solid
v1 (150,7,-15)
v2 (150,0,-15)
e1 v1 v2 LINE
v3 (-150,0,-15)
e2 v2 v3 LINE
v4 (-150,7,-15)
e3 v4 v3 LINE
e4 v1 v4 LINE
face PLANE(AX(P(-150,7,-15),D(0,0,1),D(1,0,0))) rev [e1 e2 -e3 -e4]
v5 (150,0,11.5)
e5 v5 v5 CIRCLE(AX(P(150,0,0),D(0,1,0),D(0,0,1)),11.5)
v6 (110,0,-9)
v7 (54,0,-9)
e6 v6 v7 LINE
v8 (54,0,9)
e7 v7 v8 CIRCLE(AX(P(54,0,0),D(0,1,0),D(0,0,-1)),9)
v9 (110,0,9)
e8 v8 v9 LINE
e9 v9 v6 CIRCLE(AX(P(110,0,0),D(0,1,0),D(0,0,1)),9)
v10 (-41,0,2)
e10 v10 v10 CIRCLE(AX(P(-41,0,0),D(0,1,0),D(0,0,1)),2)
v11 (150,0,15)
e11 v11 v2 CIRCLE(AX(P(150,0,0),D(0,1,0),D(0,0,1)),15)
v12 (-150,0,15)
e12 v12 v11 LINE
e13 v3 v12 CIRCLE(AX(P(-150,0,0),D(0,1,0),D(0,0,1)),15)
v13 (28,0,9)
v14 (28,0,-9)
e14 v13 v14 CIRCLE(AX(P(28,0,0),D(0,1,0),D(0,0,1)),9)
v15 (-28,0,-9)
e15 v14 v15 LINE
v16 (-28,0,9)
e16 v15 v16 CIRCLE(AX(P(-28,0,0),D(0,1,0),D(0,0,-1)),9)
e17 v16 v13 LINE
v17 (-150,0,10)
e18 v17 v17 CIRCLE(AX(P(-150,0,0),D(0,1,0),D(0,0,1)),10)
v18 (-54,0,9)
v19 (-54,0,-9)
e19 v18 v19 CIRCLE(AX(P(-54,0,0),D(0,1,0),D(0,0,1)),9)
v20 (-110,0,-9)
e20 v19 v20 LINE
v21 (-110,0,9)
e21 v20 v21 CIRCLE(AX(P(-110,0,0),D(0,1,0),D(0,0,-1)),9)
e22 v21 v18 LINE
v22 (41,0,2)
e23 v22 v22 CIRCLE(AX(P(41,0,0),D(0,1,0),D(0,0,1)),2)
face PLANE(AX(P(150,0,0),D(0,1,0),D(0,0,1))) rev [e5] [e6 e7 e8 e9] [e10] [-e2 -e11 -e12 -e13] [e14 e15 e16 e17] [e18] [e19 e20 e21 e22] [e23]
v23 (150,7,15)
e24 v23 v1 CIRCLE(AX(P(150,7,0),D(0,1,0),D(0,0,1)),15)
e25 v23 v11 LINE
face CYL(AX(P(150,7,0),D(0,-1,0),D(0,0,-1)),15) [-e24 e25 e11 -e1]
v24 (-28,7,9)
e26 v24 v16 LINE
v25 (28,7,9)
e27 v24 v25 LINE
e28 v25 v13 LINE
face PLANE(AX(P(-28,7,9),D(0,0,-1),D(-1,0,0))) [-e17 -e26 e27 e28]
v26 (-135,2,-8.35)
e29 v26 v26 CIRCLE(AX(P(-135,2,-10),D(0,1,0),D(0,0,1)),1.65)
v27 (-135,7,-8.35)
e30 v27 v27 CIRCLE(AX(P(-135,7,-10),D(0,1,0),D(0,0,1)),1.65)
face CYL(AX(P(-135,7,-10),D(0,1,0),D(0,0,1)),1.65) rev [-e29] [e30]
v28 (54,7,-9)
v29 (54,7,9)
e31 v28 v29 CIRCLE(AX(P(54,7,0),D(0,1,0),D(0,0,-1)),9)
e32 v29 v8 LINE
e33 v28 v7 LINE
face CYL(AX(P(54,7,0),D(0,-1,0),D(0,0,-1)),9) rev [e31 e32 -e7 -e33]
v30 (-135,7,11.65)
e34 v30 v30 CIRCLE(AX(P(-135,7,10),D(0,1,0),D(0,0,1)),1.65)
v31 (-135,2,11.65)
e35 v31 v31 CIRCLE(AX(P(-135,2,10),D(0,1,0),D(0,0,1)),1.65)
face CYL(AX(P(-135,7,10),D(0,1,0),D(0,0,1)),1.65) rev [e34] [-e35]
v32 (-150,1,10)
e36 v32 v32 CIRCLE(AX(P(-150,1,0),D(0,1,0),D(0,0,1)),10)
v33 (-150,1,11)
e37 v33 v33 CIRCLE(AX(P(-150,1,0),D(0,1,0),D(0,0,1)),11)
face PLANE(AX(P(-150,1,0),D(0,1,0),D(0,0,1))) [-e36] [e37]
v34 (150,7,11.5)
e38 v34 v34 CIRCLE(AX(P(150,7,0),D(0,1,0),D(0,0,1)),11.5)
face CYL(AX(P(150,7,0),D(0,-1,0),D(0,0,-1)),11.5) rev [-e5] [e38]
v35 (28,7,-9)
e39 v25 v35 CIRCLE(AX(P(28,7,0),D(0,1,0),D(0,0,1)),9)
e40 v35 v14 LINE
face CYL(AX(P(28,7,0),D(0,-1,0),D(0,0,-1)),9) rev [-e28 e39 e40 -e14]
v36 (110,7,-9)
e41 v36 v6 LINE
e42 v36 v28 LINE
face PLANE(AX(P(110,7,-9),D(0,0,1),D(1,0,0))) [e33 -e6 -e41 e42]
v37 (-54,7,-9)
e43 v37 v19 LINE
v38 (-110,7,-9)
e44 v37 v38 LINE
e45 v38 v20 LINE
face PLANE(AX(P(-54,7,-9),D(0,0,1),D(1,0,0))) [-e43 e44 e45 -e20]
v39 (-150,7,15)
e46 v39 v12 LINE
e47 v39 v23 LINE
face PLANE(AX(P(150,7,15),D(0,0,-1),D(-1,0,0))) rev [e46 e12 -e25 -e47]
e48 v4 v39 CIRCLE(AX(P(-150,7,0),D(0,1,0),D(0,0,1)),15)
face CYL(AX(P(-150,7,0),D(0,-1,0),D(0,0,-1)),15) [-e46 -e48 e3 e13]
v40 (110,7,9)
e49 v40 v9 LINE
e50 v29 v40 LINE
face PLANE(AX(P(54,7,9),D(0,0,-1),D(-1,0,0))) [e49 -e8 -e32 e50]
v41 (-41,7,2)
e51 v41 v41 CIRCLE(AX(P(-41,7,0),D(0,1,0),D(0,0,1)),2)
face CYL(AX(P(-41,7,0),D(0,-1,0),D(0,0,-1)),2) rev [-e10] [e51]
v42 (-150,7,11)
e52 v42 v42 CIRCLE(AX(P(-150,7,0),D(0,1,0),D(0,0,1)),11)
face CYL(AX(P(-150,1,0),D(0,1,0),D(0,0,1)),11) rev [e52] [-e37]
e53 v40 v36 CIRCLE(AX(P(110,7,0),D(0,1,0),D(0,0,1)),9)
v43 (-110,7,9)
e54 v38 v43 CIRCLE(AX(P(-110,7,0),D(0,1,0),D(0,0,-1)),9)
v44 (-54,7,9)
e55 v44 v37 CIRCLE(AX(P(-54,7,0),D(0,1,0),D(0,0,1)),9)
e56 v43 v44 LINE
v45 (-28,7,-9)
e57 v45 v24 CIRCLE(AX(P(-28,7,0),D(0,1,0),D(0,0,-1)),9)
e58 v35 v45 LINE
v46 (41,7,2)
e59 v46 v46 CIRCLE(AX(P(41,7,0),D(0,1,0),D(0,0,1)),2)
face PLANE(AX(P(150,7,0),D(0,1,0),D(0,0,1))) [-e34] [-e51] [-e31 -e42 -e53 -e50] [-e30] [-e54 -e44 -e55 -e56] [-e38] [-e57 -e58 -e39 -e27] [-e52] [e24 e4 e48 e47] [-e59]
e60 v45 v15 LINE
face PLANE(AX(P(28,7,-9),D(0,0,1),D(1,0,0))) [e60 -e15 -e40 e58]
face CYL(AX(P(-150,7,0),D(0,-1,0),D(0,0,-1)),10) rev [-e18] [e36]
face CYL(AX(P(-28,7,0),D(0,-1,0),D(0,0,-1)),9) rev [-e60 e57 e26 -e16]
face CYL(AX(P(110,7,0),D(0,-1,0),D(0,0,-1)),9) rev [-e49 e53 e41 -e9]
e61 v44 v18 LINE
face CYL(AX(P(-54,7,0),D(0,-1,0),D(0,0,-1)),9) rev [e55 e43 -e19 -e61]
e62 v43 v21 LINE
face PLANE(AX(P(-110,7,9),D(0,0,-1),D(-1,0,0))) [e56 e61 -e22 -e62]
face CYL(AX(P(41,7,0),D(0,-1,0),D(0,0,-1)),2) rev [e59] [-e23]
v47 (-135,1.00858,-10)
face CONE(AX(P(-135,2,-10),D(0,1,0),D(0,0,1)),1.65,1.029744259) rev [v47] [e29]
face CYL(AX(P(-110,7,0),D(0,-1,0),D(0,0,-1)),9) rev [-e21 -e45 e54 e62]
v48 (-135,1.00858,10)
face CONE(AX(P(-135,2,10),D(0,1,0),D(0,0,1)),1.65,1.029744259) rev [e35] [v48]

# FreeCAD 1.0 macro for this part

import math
import FreeCAD as App
import Part
import Sketcher
from FreeCAD import Vector
Q = App.Units.Quantity

doc = App.newDocument("Part")
body = doc.addObject("PartDesign::Body", "Body")

# Sketch on XZ plane
sketch1 = body.newObject("Sketcher::SketchObject", "Sketch")
sketch1.AttachmentSupport = (doc.getObject("XZ_Plane"), [""])
sketch1.MapMode = "FlatFace"
sketch1.addGeometry(Part.LineSegment(Vector(-150, 15, 0), Vector(150, 15, 0)), False)
sketch1.addGeometry(Part.ArcOfCircle(Part.Circle(Vector(150, 0, 0), Vector(0, 0, 1), 15), math.radians(-90), math.radians(90)), False)
sketch1.addGeometry(Part.LineSegment(Vector(150, -15, 0), Vector(-150, -15, 0)), False)
sketch1.addGeometry(Part.ArcOfCircle(Part.Circle(Vector(-150, 0, 0), Vector(0, 0, 1), 15), math.radians(90), math.radians(270)), False)
sketch1.addGeometry(Part.Circle(Vector(150, 0, 0), Vector(0, 0, 1), 11.5), False)
sketch1.addGeometry(Part.ArcOfCircle(Part.Circle(Vector(110, 0, 0), Vector(0, 0, 1), 9), math.radians(-90), math.radians(90)), False)
sketch1.addGeometry(Part.LineSegment(Vector(110, 9, 0), Vector(54, 9, 0)), False)
sketch1.addGeometry(Part.ArcOfCircle(Part.Circle(Vector(54, 0, 0), Vector(0, 0, 1), 9), math.radians(90), math.radians(270)), False)
sketch1.addGeometry(Part.LineSegment(Vector(54, -9, 0), Vector(110, -9, 0)), False)
sketch1.addGeometry(Part.Circle(Vector(41, 0, 0), Vector(0, 0, 1), 2), False)
sketch1.addGeometry(Part.ArcOfCircle(Part.Circle(Vector(28, 0, 0), Vector(0, 0, 1), 9), math.radians(-90), math.radians(90)), False)
sketch1.addGeometry(Part.LineSegment(Vector(28, 9, 0), Vector(-28, 9, 0)), False)
sketch1.addGeometry(Part.ArcOfCircle(Part.Circle(Vector(-28, 0, 0), Vector(0, 0, 1), 9), math.radians(90), math.radians(270)), False)
sketch1.addGeometry(Part.LineSegment(Vector(-28, -9, 0), Vector(28, -9, 0)), False)
sketch1.addGeometry(Part.Circle(Vector(-41, 0, 0), Vector(0, 0, 1), 2), False)
sketch1.addGeometry(Part.ArcOfCircle(Part.Circle(Vector(-54, 0, 0), Vector(0, 0, 1), 9), math.radians(-90), math.radians(90)), False)
sketch1.addGeometry(Part.LineSegment(Vector(-54, 9, 0), Vector(-110, 9, 0)), False)
sketch1.addGeometry(Part.ArcOfCircle(Part.Circle(Vector(-110, 0, 0), Vector(0, 0, 1), 9), math.radians(90), math.radians(270)), False)
sketch1.addGeometry(Part.LineSegment(Vector(-110, -9, 0), Vector(-54, -9, 0)), False)
sketch1.addGeometry(Part.Circle(Vector(-150, 0, 0), Vector(0, 0, 1), 10), False)
sketch1.addConstraint(Sketcher.Constraint("Tangent", 0, 2, 1, 2))
sketch1.addConstraint(Sketcher.Constraint("Tangent", 1, 1, 2, 1))
sketch1.addConstraint(Sketcher.Constraint("Tangent", 2, 2, 3, 2))
sketch1.addConstraint(Sketcher.Constraint("Tangent", 3, 1, 0, 1))
sketch1.addConstraint(Sketcher.Constraint("Tangent", 5, 2, 6, 1))
sketch1.addConstraint(Sketcher.Constraint("Tangent", 6, 2, 7, 1))
sketch1.addConstraint(Sketcher.Constraint("Tangent", 7, 2, 8, 1))
sketch1.addConstraint(Sketcher.Constraint("Tangent", 8, 2, 5, 1))
sketch1.addConstraint(Sketcher.Constraint("Tangent", 10, 2, 11, 1))
sketch1.addConstraint(Sketcher.Constraint("Tangent", 11, 2, 12, 1))
sketch1.addConstraint(Sketcher.Constraint("Tangent", 12, 2, 13, 1))
sketch1.addConstraint(Sketcher.Constraint("Tangent", 13, 2, 10, 1))
sketch1.addConstraint(Sketcher.Constraint("Tangent", 15, 2, 16, 1))
sketch1.addConstraint(Sketcher.Constraint("Tangent", 16, 2, 17, 1))
sketch1.addConstraint(Sketcher.Constraint("Tangent", 17, 2, 18, 1))
sketch1.addConstraint(Sketcher.Constraint("Tangent", 18, 2, 15, 1))
sketch1.addConstraint(Sketcher.Constraint("Horizontal", 0))
sketch1.addConstraint(Sketcher.Constraint("Horizontal", 2))
sketch1.addConstraint(Sketcher.Constraint("Horizontal", 6))
sketch1.addConstraint(Sketcher.Constraint("Horizontal", 8))
sketch1.addConstraint(Sketcher.Constraint("Horizontal", 11))
sketch1.addConstraint(Sketcher.Constraint("Horizontal", 13))
sketch1.addConstraint(Sketcher.Constraint("Horizontal", 16))
sketch1.addConstraint(Sketcher.Constraint("Horizontal", 18))
sketch1.addConstraint(Sketcher.Constraint("Coincident", 4, 3, 1, 3))
sketch1.addConstraint(Sketcher.Constraint("Coincident", 19, 3, 3, 3))
sketch1.addConstraint(Sketcher.Constraint("Equal", 7, 10))
sketch1.addConstraint(Sketcher.Constraint("Equal", 9, 14))
sketch1.addConstraint(Sketcher.Constraint("Equal", 12, 15))
sketch1.addConstraint(Sketcher.Constraint("Symmetric", 1, 3, 3, 3, -1, 1))
sketch1.addConstraint(Sketcher.Constraint("Symmetric", 10, 3, 12, 3, -1, 1))
sketch1.addConstraint(Sketcher.Constraint("Symmetric", 9, 3, 14, 3, -1, 1))
sketch1.addConstraint(Sketcher.Constraint("Symmetric", 7, 3, 15, 3, -1, 1))
sketch1.addConstraint(Sketcher.Constraint("Symmetric", 5, 3, 17, 3, -2))
sketch1.addConstraint(Sketcher.Constraint("PointOnObject", 9, 3, -1))
sketch1.addConstraint(Sketcher.Constraint("Equal", 8, 11))
sketch1.addConstraint(Sketcher.Constraint("Diameter", 4, Q("23 mm")))
sketch1.addConstraint(Sketcher.Constraint("Diameter", 9, Q("4 mm")))
sketch1.addConstraint(Sketcher.Constraint("Diameter", 19, Q("20 mm")))
sketch1.addConstraint(Sketcher.Constraint("Radius", 1, Q("15 mm")))
sketch1.addConstraint(Sketcher.Constraint("Radius", 5, Q("9 mm")))
sketch1.addConstraint(Sketcher.Constraint("DistanceX", 0, 1, 0, 2, Q("300 mm")))
sketch1.addConstraint(Sketcher.Constraint("DistanceX", 6, 2, 6, 1, Q("56 mm")))
sketch1.addConstraint(Sketcher.Constraint("DistanceX", -1, 1, 5, 3, Q("110 mm")))
sketch1.addConstraint(Sketcher.Constraint("DistanceX", -1, 1, 9, 3, Q("41 mm")))
pad1 = body.newObject("PartDesign::Pad", "Pad")
pad1.Profile = sketch1
pad1.Length = 7
pad1.Reversed = True

# Sketch on XZ plane
sketch2 = body.newObject("Sketcher::SketchObject", "Sketch001")
sketch2.AttachmentSupport = (doc.getObject("XZ_Plane"), [""])
sketch2.MapMode = "FlatFace"
sketch2.AttachmentOffset = App.Placement(Vector(0, 0, -7), App.Rotation())
sketch2.addGeometry(Part.Circle(Vector(-150, 0, 0), Vector(0, 0, 1), 11), False)
sketch2.addConstraint(Sketcher.Constraint("PointOnObject", 0, 3, -1))
sketch2.addConstraint(Sketcher.Constraint("Diameter", 0, Q("22 mm")))
sketch2.addConstraint(Sketcher.Constraint("DistanceX", 0, 3, -1, 1, Q("150 mm")))
pocket1 = body.newObject("PartDesign::Pocket", "Pocket")
pocket1.Profile = sketch2
pocket1.Length = 6
pocket1.Reversed = True

# Sketch on XZ plane
sketch3 = body.newObject("Sketcher::SketchObject", "Sketch002")
sketch3.AttachmentSupport = (doc.getObject("XZ_Plane"), [""])
sketch3.MapMode = "FlatFace"
sketch3.AttachmentOffset = App.Placement(Vector(0, 0, -7), App.Rotation())
sketch3.addGeometry(Part.Circle(Vector(-135, -10, 0), Vector(0, 0, 1), 1.6), False)
sketch3.addGeometry(Part.Circle(Vector(-135, 10, 0), Vector(0, 0, 1), 1.6), False)
sketch3.addConstraint(Sketcher.Constraint("Equal", 0, 1))
sketch3.addConstraint(Sketcher.Constraint("Symmetric", 0, 3, 1, 3, -1))
sketch3.addConstraint(Sketcher.Constraint("Diameter", 0, Q("3.3 mm")))
sketch3.addConstraint(Sketcher.Constraint("DistanceX", 0, 3, -1, 1, Q("135 mm")))
sketch3.addConstraint(Sketcher.Constraint("DistanceY", 0, 3, -1, 1, Q("10 mm")))
doc.recompute()
hole = body.newObject("PartDesign::Hole", "Hole")
hole.Profile = sketch3
hole.ThreadType = "None"
hole.Diameter = 3.3
hole.DepthType = "Dimension"
hole.Depth = 5
hole.DrillPoint = "Angled"
hole.DrillPointAngle = 118
hole.Reversed = True

doc.recompute()
